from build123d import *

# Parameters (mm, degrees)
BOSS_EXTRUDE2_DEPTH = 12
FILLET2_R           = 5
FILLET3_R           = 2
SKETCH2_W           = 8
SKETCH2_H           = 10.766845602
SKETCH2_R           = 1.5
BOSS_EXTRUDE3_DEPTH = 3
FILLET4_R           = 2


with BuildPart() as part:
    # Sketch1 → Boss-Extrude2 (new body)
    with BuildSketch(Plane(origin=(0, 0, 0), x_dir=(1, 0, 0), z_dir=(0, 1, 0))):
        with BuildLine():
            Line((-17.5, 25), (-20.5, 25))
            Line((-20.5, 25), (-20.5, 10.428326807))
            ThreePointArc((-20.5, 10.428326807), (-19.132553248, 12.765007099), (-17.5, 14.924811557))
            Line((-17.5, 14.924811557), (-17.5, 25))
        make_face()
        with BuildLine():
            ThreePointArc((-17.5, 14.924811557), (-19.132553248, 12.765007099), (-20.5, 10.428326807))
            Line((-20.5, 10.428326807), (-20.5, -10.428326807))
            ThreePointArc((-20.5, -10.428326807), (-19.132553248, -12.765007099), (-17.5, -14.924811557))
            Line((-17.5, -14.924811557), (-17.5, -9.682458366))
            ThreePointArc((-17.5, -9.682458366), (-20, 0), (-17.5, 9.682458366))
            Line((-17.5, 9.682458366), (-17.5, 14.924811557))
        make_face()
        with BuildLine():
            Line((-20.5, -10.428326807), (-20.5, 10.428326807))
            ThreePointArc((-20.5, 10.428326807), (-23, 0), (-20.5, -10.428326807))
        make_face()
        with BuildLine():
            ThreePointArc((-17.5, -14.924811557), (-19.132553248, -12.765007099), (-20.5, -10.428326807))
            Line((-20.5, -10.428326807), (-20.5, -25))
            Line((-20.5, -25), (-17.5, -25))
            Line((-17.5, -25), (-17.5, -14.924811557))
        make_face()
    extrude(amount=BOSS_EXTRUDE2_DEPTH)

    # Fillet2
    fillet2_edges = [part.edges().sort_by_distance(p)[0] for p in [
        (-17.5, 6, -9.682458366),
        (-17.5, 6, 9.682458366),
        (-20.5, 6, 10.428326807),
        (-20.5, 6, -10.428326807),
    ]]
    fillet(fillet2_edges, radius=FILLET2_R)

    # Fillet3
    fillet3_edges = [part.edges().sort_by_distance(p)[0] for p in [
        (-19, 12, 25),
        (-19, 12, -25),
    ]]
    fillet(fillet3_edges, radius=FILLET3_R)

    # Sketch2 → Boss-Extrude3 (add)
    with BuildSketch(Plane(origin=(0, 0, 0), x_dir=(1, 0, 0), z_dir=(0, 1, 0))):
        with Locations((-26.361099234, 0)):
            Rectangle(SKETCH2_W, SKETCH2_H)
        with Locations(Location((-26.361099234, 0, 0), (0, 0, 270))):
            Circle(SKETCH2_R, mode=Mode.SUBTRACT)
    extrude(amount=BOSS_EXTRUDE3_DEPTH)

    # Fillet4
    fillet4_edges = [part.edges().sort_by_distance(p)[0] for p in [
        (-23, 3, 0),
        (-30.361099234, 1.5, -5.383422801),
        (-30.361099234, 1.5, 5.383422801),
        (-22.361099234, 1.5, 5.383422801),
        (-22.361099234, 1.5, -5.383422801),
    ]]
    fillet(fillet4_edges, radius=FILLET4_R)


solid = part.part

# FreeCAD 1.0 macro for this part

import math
import FreeCAD as App
import Part
import Sketcher
Q = App.Units.Quantity


def edges_at(feature, points):
    """Names of the edges that pass closest to the given points."""
    edges = feature.Shape.Edges
    near = lambda p: min(range(len(edges)), key=lambda i: edges[i].distToShape(Part.Vertex(*p))[0])
    return sorted({f"Edge{near(p) + 1}" for p in points})


def add_polygon(sketch, points):
    """Adds a closed chain of lines whose ends are joined by coincident constraints."""
    first, n = sketch.GeometryCount, len(points)
    for a, b in zip(points, points[1:] + points[:1]):
        sketch.addGeometry(Part.LineSegment(App.Vector(*a, 0), App.Vector(*b, 0)), False)
    for i in range(n):
        sketch.addConstraint(Sketcher.Constraint("Coincident", first + i, 2, first + (i + 1) % n, 1))

doc = App.newDocument("Part")
body = doc.addObject("PartDesign::Body", "Body")

# Sketch on XZ plane
sketch1 = body.newObject("Sketcher::SketchObject", "Sketch")
sketch1.AttachmentSupport = (doc.getObject("XZ_Plane"), [""])
sketch1.MapMode = "FlatFace"
sketch1.addGeometry([
    Part.LineSegment(App.Vector(-17.5, -25, 0), App.Vector(-20.5, -25, 0)),  # 0
    Part.LineSegment(App.Vector(-20.5, -25, 0), App.Vector(-20.5, -10.4, 0)),  # 1
    Part.ArcOfCircle(Part.Circle(App.Vector(0, 0, 0), App.Vector(0, 0, 1), 23), math.radians(153), math.radians(207)),  # 2
    Part.LineSegment(App.Vector(-20.5, 10.4, 0), App.Vector(-20.5, 25, 0)),  # 3
    Part.LineSegment(App.Vector(-20.5, 25, 0), App.Vector(-17.5, 25, 0)),  # 4
    Part.LineSegment(App.Vector(-17.5, 25, 0), App.Vector(-17.5, 9.7, 0)),  # 5
    Part.ArcOfCircle(Part.Circle(App.Vector(0, 0, 0), App.Vector(0, 0, 1), 20), math.radians(151), math.radians(209)),  # 6
    Part.LineSegment(App.Vector(-17.5, -9.7, 0), App.Vector(-17.5, -25, 0)),  # 7
], False)
sketch1.addConstraint([
    Sketcher.Constraint("Coincident", 0, 2, 1, 1),
    Sketcher.Constraint("Coincident", 1, 2, 2, 2),
    Sketcher.Constraint("Coincident", 2, 1, 3, 1),
    Sketcher.Constraint("Coincident", 3, 2, 4, 1),
    Sketcher.Constraint("Coincident", 4, 2, 5, 1),
    Sketcher.Constraint("Coincident", 5, 2, 6, 1),
    Sketcher.Constraint("Coincident", 6, 2, 7, 1),
    Sketcher.Constraint("Coincident", 7, 2, 0, 1),
    Sketcher.Constraint("Horizontal", 0),
    Sketcher.Constraint("Vertical", 1),
    Sketcher.Constraint("Vertical", 3),
    Sketcher.Constraint("Horizontal", 4),
    Sketcher.Constraint("Vertical", 5),
    Sketcher.Constraint("Vertical", 7),
    Sketcher.Constraint("Coincident", 2, 3, -1, 1),
    Sketcher.Constraint("Coincident", 6, 3, -1, 1),
    Sketcher.Constraint("Symmetric", 0, 2, 3, 2, -1),
    Sketcher.Constraint("Vertical", 5, 2, 6, 2),
    Sketcher.Constraint("Radius", 2, Q("23 mm")),
    Sketcher.Constraint("Radius", 6, Q("20 mm")),
    Sketcher.Constraint("DistanceX", 0, 2, 0, 1, Q("3 mm")),
    Sketcher.Constraint("DistanceY", 0, 2, -1, 1, Q("25 mm")),
    Sketcher.Constraint("DistanceX", 0, 2, -1, 1, Q("20.5 mm")),
])
pad1 = body.newObject("PartDesign::Pad", "Pad")
pad1.Profile = sketch1
pad1.Length = 12
pad1.Reversed = True
doc.recompute()

fillet = body.newObject("PartDesign::Fillet", "Fillet")
fillet.Base = (pad1, edges_at(pad1, [
    (-17.5, 6, -9.682),
    (-17.5, 6, 9.682),
    (-20.5, 6, 10.428),
    (-20.5, 6, -10.428),
]))
fillet.Radius = 5
doc.recompute()

fillet2 = body.newObject("PartDesign::Fillet", "Fillet001")
fillet2.Base = (fillet, edges_at(fillet, [(-19, 12, 25), (-19, 12, -25)]))
fillet2.Radius = 2

# Sketch on XZ plane
sketch2 = body.newObject("Sketcher::SketchObject", "Sketch001")
sketch2.AttachmentSupport = (doc.getObject("XZ_Plane"), [""])
sketch2.MapMode = "FlatFace"
add_polygon(sketch2, [(-30.4, -5.4), (-30.4, 5.4), (-22.4, 5.4), (-22.4, -5.4)])  # lines 0-3
sketch2.addGeometry(Part.Circle(App.Vector(-26.4, 0, 0), App.Vector(0, 0, 1), 1.5), False)  # 4
sketch2.addConstraint([
    Sketcher.Constraint("Vertical", 0),
    Sketcher.Constraint("Horizontal", 1),
    Sketcher.Constraint("Vertical", 2),
    Sketcher.Constraint("Horizontal", 3),
    Sketcher.Constraint("PointOnObject", 4, 3, -1),
    Sketcher.Constraint("Diameter", 4, Q("3 mm")),
    Sketcher.Constraint("DistanceX", 1, 1, 1, 2, Q("8 mm")),
    Sketcher.Constraint("DistanceX", 0, 2, 4, 3, Q("4 mm")),
    Sketcher.Constraint("DistanceX", 4, 3, -1, 1, Q("26.361099 mm")),
    Sketcher.Constraint("DistanceY", 0, 1, 0, 2, Q("10.766846 mm")),
    Sketcher.Constraint("DistanceY", -1, 1, 0, 2, Q("5.383423 mm")),
])
pad2 = body.newObject("PartDesign::Pad", "Pad001")
pad2.Profile = sketch2
pad2.Length = 3
pad2.Reversed = True
doc.recompute()

fillet3 = body.newObject("PartDesign::Fillet", "Fillet002")
fillet3.Base = (pad2, edges_at(pad2, [
    (-23, 3, 0),
    (-30.361, 1.5, -5.383),
    (-30.361, 1.5, 5.383),
    (-22.361, 1.5, 5.383),
    (-22.361, 1.5, -5.383),
]))
fillet3.Radius = 2

doc.recompute()
